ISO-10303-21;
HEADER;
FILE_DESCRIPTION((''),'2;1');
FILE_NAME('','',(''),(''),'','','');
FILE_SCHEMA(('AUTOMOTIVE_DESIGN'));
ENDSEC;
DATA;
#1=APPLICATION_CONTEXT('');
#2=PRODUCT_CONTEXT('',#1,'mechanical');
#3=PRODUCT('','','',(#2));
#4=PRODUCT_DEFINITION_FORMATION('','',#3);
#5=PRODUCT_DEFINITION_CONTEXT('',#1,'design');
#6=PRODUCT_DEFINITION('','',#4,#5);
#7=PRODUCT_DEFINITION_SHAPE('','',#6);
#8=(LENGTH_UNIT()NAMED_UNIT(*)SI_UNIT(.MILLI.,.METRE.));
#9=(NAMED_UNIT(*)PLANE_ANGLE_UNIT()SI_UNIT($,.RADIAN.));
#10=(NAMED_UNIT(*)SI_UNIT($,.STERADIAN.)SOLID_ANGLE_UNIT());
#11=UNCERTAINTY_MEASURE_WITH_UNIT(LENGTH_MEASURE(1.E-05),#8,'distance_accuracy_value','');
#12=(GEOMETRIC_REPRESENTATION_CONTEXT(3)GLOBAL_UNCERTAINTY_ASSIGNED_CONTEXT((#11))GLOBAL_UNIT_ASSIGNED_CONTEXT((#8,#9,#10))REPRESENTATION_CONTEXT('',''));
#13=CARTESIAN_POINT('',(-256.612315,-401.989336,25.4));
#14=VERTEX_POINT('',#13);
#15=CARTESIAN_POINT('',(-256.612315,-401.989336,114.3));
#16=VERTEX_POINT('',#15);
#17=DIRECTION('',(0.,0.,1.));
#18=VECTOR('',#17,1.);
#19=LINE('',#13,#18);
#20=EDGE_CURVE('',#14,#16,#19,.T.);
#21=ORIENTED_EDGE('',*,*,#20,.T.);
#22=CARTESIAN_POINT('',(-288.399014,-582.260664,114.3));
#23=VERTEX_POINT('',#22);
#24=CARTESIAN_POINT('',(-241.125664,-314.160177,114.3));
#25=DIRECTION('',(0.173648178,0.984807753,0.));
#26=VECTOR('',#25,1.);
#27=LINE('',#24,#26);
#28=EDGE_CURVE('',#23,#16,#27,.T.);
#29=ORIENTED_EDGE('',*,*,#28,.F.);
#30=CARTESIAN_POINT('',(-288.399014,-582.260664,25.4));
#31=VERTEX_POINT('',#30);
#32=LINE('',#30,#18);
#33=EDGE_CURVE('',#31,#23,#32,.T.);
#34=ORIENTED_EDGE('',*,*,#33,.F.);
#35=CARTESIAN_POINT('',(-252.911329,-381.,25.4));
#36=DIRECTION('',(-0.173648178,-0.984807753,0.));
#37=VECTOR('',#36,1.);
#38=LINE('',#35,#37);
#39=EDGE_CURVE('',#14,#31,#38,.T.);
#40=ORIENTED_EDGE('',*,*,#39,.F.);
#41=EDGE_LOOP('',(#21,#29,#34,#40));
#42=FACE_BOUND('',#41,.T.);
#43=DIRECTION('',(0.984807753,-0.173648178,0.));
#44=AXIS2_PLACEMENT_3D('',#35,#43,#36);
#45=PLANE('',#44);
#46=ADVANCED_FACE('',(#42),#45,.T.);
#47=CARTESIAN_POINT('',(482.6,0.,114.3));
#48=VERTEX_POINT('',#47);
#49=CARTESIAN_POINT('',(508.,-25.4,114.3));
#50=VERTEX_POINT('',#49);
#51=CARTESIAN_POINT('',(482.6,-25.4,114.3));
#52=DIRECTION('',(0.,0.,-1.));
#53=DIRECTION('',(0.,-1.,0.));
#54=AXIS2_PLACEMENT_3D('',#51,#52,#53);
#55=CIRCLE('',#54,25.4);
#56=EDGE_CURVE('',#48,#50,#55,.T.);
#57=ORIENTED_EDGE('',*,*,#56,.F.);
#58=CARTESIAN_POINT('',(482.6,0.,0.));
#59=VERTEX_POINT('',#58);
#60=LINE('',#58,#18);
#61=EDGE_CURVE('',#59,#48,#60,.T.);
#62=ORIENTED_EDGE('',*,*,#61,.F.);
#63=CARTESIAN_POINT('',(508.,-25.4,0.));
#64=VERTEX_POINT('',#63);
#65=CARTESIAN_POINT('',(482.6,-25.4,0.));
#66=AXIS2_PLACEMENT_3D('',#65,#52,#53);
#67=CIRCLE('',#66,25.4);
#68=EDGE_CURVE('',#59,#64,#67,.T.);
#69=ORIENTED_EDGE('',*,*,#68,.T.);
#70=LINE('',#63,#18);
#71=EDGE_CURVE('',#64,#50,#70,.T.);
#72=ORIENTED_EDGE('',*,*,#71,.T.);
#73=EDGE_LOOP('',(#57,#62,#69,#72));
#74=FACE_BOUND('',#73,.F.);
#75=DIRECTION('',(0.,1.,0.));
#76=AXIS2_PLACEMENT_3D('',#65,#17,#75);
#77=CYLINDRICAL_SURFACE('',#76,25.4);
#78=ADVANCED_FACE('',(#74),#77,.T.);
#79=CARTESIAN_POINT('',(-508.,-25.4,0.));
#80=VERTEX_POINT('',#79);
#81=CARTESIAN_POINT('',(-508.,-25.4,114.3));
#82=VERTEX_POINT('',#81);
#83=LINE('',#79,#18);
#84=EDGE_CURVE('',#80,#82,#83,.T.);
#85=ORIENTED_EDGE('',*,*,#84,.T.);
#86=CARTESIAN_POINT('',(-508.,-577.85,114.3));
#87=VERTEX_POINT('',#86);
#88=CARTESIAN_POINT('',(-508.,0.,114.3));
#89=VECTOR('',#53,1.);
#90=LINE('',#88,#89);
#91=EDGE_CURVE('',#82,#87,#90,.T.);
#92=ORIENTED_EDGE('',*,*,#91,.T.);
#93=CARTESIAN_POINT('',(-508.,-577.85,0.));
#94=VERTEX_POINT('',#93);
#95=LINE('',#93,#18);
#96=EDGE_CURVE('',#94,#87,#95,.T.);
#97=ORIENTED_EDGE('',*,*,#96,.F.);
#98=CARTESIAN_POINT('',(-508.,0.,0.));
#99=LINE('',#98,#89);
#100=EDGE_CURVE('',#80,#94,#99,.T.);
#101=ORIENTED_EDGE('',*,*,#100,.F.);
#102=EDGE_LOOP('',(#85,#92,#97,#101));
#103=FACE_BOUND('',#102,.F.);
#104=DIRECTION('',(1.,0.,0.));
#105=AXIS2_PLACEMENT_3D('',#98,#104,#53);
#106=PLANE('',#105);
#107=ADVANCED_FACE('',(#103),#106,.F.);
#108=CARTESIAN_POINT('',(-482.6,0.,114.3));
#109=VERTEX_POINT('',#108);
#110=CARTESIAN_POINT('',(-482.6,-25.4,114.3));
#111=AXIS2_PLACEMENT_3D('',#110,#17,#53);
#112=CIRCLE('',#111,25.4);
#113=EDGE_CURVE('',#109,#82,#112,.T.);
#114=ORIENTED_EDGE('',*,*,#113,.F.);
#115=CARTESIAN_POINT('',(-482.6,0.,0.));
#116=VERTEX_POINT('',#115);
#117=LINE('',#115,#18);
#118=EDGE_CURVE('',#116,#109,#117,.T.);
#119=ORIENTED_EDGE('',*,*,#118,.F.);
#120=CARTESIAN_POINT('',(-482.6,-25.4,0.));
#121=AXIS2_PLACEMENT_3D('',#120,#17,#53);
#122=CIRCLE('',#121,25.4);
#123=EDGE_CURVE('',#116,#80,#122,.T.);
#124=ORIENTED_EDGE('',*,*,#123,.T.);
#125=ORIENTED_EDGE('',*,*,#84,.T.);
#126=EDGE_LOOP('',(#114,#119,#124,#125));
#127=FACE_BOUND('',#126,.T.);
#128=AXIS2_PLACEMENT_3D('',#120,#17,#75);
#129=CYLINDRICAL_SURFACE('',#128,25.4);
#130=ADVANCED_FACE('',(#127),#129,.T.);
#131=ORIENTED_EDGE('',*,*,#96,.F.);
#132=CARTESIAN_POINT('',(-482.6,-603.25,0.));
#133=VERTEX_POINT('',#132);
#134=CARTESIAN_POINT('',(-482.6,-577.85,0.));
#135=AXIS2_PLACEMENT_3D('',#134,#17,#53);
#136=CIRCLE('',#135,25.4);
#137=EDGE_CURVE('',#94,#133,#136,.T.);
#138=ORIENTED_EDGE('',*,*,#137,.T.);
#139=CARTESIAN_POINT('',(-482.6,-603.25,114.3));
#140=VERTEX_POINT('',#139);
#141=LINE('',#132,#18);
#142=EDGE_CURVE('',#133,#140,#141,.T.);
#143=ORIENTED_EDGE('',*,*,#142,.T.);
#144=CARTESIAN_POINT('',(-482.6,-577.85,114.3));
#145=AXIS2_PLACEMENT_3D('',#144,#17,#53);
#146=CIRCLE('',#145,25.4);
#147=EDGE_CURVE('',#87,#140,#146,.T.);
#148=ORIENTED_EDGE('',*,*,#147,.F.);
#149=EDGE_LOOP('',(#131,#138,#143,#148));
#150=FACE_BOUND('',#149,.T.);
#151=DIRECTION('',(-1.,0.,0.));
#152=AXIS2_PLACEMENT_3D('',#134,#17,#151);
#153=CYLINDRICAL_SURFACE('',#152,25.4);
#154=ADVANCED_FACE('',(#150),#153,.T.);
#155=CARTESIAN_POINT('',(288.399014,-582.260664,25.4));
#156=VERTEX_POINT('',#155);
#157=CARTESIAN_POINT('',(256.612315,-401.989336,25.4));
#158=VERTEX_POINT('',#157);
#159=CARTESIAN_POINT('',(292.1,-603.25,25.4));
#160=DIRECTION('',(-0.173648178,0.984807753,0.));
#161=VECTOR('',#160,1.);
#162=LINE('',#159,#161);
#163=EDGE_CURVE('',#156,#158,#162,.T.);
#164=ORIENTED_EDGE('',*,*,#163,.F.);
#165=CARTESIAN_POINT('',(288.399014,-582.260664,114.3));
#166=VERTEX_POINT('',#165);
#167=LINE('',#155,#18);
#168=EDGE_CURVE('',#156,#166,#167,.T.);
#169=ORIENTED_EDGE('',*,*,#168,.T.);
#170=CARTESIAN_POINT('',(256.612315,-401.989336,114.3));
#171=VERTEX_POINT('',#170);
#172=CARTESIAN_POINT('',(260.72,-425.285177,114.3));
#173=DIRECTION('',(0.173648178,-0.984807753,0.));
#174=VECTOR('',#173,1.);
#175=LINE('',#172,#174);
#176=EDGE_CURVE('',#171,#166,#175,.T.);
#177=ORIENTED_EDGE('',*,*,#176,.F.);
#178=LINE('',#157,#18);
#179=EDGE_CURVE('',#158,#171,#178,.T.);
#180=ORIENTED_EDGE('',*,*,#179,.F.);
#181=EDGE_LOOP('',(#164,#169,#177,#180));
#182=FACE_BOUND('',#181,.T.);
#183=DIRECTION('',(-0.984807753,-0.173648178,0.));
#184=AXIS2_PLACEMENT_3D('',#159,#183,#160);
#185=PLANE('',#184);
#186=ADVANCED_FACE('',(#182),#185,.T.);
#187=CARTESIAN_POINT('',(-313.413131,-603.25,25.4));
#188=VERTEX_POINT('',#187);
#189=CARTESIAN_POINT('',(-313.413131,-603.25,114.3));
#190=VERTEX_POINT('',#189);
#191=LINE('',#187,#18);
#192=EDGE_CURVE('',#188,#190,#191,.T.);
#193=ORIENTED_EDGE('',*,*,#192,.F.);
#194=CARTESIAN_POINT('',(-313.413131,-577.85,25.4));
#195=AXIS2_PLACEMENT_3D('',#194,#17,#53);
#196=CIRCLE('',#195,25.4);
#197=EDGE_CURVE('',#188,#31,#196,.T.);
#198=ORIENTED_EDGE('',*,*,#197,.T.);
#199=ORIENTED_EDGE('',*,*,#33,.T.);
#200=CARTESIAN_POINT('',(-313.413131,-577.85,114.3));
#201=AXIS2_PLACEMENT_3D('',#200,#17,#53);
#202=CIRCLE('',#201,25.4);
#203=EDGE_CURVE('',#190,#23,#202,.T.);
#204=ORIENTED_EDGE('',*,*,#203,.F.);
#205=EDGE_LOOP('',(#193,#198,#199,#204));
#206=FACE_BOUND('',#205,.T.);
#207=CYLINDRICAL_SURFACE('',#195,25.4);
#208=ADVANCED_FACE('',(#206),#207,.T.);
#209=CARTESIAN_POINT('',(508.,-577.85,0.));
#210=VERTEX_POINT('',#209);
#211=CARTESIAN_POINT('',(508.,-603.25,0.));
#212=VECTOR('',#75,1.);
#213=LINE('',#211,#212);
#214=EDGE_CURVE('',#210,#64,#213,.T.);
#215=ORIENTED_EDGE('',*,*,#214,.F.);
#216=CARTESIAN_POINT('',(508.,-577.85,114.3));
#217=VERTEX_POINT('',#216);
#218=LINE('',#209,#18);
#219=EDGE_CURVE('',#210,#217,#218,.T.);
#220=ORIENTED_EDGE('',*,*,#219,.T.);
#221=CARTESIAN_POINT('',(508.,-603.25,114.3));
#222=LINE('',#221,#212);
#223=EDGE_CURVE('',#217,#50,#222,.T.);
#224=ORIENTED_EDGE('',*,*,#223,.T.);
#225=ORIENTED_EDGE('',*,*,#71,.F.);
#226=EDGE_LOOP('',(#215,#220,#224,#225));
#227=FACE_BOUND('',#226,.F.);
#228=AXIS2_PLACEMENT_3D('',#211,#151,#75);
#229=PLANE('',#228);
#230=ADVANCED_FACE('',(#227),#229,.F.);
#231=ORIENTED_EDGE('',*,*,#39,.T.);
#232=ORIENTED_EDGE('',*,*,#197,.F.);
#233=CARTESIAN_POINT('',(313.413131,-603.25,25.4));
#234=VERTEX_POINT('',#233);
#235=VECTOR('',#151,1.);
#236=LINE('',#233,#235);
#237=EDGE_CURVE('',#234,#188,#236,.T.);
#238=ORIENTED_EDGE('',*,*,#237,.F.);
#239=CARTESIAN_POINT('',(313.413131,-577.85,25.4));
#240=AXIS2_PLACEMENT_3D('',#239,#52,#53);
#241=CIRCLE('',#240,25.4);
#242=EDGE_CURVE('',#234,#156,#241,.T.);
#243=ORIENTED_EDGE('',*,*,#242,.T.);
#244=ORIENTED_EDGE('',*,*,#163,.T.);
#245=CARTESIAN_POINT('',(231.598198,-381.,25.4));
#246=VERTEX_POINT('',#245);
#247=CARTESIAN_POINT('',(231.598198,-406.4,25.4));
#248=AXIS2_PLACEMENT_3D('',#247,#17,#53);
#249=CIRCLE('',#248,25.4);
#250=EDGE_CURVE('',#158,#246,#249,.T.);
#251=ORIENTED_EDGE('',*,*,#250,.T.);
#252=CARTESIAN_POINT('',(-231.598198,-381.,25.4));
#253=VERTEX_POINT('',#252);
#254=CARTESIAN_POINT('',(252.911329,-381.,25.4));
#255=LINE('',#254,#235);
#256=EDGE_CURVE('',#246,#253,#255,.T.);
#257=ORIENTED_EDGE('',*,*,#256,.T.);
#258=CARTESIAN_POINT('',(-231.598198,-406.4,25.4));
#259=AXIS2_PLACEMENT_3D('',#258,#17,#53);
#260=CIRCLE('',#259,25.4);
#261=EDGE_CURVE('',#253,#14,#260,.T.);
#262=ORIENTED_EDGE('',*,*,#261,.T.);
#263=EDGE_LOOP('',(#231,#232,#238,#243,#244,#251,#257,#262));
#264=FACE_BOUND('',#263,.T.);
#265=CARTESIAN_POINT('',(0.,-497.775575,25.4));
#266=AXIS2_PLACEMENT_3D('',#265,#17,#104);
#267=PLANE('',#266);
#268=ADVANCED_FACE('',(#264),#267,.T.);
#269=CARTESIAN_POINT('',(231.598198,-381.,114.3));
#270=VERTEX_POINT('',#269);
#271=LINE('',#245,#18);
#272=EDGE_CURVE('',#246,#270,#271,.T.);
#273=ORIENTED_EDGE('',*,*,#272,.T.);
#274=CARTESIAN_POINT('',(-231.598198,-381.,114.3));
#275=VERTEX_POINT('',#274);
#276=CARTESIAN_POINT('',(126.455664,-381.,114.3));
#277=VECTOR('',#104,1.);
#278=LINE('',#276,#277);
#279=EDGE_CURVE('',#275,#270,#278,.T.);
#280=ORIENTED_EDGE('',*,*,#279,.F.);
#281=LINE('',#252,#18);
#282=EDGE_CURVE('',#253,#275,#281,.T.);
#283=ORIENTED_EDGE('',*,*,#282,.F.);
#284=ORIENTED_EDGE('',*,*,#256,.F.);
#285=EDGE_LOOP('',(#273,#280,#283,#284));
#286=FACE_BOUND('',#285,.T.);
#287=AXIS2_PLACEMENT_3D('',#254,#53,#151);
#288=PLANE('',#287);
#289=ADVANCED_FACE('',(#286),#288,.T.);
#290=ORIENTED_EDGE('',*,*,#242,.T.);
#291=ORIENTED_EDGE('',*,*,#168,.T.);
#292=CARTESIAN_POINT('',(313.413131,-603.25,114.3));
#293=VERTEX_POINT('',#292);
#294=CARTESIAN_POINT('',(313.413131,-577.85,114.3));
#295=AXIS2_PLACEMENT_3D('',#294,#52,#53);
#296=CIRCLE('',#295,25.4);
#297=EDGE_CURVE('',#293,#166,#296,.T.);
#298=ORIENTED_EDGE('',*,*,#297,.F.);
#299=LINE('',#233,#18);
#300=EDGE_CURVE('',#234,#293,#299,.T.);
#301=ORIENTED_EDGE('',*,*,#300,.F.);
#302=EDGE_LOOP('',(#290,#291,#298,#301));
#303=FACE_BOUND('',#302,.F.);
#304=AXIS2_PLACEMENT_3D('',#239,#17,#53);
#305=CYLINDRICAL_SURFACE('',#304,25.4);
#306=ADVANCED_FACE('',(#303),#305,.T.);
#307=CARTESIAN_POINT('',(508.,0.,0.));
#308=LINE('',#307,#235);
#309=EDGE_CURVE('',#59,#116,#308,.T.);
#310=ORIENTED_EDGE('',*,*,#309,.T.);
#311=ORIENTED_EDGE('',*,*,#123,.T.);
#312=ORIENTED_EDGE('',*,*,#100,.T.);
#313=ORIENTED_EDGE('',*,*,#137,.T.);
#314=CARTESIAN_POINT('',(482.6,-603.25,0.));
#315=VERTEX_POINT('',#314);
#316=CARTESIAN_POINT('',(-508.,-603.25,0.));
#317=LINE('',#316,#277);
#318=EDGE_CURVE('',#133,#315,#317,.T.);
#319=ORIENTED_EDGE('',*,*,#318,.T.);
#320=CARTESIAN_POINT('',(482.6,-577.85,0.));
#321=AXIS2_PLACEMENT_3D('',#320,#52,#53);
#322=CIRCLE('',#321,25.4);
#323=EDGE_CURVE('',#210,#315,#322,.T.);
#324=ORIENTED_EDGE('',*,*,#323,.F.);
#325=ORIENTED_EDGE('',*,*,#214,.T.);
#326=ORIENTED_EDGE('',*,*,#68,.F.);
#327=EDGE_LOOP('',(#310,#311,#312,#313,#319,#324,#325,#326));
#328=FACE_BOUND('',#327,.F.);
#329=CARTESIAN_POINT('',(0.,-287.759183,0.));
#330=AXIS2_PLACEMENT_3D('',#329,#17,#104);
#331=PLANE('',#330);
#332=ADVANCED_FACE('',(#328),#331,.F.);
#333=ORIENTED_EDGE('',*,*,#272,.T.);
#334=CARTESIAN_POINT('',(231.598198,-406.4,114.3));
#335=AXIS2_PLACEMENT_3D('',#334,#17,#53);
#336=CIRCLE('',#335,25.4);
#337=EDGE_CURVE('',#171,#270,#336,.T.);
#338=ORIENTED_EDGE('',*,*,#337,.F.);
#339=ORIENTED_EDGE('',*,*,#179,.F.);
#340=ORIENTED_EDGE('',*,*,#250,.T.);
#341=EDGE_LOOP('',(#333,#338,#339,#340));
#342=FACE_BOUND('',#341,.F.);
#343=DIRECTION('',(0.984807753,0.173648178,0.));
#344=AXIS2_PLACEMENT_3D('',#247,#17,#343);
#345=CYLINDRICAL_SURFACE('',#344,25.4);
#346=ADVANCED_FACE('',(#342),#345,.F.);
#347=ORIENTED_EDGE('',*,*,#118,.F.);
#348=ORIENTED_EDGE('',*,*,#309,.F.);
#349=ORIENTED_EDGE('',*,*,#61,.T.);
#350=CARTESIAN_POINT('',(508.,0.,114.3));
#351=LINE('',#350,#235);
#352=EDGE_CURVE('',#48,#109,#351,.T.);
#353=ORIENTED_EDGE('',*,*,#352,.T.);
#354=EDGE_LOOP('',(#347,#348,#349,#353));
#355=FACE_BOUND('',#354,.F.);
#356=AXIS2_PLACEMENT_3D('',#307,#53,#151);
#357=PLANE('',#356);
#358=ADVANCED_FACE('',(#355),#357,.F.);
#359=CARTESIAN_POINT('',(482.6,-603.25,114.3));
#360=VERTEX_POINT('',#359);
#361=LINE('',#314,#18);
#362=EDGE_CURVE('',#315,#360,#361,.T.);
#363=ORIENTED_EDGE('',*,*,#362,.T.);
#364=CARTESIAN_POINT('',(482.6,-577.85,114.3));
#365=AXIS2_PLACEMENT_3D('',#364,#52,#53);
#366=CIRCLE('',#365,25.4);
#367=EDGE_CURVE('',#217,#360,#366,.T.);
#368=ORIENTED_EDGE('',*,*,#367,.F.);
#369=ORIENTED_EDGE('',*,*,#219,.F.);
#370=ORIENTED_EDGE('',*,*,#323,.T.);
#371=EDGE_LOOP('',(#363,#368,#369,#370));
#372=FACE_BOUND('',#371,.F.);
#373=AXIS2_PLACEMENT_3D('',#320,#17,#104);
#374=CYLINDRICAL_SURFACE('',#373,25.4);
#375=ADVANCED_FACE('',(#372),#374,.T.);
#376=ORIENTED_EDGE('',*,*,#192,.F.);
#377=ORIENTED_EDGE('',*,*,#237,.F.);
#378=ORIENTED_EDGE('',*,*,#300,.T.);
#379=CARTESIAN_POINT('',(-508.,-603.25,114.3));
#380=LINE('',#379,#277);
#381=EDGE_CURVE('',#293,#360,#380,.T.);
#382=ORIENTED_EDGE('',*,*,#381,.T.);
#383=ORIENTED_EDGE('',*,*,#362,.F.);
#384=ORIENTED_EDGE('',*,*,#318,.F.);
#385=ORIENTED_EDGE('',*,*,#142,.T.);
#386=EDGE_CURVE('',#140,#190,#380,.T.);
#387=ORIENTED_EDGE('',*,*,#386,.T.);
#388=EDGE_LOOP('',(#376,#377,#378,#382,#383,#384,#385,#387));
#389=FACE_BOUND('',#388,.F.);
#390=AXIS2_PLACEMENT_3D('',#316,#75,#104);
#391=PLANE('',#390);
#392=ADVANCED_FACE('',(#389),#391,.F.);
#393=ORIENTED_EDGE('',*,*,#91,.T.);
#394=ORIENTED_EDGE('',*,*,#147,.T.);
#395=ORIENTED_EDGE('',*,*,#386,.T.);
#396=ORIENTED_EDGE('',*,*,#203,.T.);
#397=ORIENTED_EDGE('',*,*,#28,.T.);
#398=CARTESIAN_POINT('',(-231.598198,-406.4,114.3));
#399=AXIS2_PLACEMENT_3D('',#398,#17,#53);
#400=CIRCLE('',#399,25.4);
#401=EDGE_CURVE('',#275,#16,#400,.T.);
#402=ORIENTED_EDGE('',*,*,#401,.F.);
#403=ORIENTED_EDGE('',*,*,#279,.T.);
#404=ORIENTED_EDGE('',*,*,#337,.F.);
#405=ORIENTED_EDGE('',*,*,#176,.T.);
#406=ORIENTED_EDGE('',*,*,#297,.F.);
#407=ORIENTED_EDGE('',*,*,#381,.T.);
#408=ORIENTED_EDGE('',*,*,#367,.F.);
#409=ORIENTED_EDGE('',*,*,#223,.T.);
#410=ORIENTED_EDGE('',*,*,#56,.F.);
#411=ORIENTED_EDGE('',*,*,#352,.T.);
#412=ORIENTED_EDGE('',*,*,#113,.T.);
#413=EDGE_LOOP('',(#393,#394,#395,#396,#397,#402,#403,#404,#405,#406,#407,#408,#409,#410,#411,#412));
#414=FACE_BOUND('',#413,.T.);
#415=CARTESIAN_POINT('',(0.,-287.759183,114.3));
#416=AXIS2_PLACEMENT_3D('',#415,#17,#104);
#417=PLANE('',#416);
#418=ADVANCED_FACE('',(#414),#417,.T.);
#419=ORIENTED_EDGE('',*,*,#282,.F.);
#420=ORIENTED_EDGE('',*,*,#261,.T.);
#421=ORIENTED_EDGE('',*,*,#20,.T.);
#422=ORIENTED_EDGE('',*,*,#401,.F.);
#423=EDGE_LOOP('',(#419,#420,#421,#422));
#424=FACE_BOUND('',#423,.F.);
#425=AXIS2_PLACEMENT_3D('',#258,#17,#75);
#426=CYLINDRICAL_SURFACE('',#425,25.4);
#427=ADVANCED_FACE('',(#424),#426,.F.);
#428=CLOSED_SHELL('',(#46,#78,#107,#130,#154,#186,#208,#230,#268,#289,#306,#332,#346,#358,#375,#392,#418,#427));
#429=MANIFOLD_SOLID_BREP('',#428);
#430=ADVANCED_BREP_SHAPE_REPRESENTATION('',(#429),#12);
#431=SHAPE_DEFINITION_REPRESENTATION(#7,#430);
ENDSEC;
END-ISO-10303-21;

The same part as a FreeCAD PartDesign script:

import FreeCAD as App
import Part
import Sketcher
from FreeCAD import Vector
Q = App.Units.Quantity


def edges_at(feature, points):
    """Names of the edges that pass closest to the given points."""
    edges = feature.Shape.Edges
    near = lambda p: min(range(len(edges)), key=lambda i: edges[i].distToShape(Part.Vertex(*p))[0])
    return sorted({f"Edge{near(p) + 1}" for p in points})

doc = App.newDocument("Part")
body = doc.addObject("PartDesign::Body", "Body")

# Sketch on XY plane
sketch1 = body.newObject("Sketcher::SketchObject", "Sketch")
sketch1.AttachmentSupport = (doc.getObject("XY_Plane"), [""])
sketch1.MapMode = "FlatFace"
sketch1.addGeometry([
    Part.LineSegment(Vector(508, 0, 0), Vector(-508, 0, 0)),
    Part.LineSegment(Vector(-508, 0, 0), Vector(-508, -603.25, 0)),
    Part.LineSegment(Vector(-508, -603.25, 0), Vector(508, -603.25, 0)),
    Part.LineSegment(Vector(508, -603.25, 0), Vector(508, 0, 0)),
], False)
sketch1.addConstraint([
    Sketcher.Constraint("Coincident", 0, 2, 1, 1),
    Sketcher.Constraint("Coincident", 1, 2, 2, 1),
    Sketcher.Constraint("Coincident", 2, 2, 3, 1),
    Sketcher.Constraint("Coincident", 3, 2, 0, 1),
    Sketcher.Constraint("Horizontal", 0),
    Sketcher.Constraint("Vertical", 1),
    Sketcher.Constraint("Horizontal", 2),
    Sketcher.Constraint("Vertical", 3),
    Sketcher.Constraint("Symmetric", 0, 2, 3, 2, -1, 1),
    Sketcher.Constraint("DistanceX", 0, 2, 0, 1, Q("40 in")),
    Sketcher.Constraint("DistanceY", 1, 2, 1, 1, Q("23.75 in")),
])
pad1 = body.newObject("PartDesign::Pad", "Pad")
pad1.Profile = sketch1
pad1.Length = Q("4.5 in")

# Sketch on XY plane
sketch2 = body.newObject("Sketcher::SketchObject", "Sketch001")
sketch2.AttachmentSupport = (doc.getObject("XY_Plane"), [""])
sketch2.MapMode = "FlatFace"
sketch2.AttachmentOffset = App.Placement(Vector(0, 0, 1 * 25.4), App.Rotation())
sketch2.addGeometry([
    Part.LineSegment(Vector(-252.911329, -381, 0), Vector(-292.1, -603.25, 0)),
    Part.LineSegment(Vector(-292.1, -603.25, 0), Vector(292.1, -603.25, 0)),
    Part.LineSegment(Vector(292.1, -603.25, 0), Vector(252.911329, -381, 0)),
    Part.LineSegment(Vector(252.911329, -381, 0), Vector(-252.911329, -381, 0)),
], False)
sketch2.addConstraint([
    Sketcher.Constraint("Coincident", 0, 2, 1, 1),
    Sketcher.Constraint("Coincident", 1, 2, 2, 1),
    Sketcher.Constraint("Coincident", 2, 2, 3, 1),
    Sketcher.Constraint("Coincident", 3, 2, 0, 1),
    Sketcher.Constraint("Horizontal", 1),
    Sketcher.Constraint("Horizontal", 3),
    Sketcher.Constraint("Equal", 0, 2),
    Sketcher.Constraint("DistanceX", 1, 1, 1, 2, Q("23 in")),
    Sketcher.Constraint("DistanceY", 2, 2, -1, 1, Q("15 in")),
    Sketcher.Constraint("Angle", 0, Q("-100 deg")),
    Sketcher.Constraint("DistanceX", 0, 2, -1, 1, Q("11.5 in")),
    Sketcher.Constraint("DistanceY", 0, 2, -1, 1, Q("23.75 in")),
])
pocket1 = body.newObject("PartDesign::Pocket", "Pocket")
pocket1.Profile = sketch2
pocket1.Length = 88.901
pocket1.Reversed = True
doc.recompute()

fillet = body.newObject("PartDesign::Fillet", "Fillet")
fillet.Base = (pocket1, edges_at(pocket1, [
    (-508, -603.25, 57.15),
    (508, -603.25, 57.15),
    (-292.1, -603.25, 69.85),
    (-252.911, -381, 69.85),
    (292.1, -603.25, 69.85),
    (508, 0, 57.15),
    (252.911, -381, 69.85),
    (-508, 0, 57.15),
]))
fillet.Radius = Q("1 in")

doc.recompute()
